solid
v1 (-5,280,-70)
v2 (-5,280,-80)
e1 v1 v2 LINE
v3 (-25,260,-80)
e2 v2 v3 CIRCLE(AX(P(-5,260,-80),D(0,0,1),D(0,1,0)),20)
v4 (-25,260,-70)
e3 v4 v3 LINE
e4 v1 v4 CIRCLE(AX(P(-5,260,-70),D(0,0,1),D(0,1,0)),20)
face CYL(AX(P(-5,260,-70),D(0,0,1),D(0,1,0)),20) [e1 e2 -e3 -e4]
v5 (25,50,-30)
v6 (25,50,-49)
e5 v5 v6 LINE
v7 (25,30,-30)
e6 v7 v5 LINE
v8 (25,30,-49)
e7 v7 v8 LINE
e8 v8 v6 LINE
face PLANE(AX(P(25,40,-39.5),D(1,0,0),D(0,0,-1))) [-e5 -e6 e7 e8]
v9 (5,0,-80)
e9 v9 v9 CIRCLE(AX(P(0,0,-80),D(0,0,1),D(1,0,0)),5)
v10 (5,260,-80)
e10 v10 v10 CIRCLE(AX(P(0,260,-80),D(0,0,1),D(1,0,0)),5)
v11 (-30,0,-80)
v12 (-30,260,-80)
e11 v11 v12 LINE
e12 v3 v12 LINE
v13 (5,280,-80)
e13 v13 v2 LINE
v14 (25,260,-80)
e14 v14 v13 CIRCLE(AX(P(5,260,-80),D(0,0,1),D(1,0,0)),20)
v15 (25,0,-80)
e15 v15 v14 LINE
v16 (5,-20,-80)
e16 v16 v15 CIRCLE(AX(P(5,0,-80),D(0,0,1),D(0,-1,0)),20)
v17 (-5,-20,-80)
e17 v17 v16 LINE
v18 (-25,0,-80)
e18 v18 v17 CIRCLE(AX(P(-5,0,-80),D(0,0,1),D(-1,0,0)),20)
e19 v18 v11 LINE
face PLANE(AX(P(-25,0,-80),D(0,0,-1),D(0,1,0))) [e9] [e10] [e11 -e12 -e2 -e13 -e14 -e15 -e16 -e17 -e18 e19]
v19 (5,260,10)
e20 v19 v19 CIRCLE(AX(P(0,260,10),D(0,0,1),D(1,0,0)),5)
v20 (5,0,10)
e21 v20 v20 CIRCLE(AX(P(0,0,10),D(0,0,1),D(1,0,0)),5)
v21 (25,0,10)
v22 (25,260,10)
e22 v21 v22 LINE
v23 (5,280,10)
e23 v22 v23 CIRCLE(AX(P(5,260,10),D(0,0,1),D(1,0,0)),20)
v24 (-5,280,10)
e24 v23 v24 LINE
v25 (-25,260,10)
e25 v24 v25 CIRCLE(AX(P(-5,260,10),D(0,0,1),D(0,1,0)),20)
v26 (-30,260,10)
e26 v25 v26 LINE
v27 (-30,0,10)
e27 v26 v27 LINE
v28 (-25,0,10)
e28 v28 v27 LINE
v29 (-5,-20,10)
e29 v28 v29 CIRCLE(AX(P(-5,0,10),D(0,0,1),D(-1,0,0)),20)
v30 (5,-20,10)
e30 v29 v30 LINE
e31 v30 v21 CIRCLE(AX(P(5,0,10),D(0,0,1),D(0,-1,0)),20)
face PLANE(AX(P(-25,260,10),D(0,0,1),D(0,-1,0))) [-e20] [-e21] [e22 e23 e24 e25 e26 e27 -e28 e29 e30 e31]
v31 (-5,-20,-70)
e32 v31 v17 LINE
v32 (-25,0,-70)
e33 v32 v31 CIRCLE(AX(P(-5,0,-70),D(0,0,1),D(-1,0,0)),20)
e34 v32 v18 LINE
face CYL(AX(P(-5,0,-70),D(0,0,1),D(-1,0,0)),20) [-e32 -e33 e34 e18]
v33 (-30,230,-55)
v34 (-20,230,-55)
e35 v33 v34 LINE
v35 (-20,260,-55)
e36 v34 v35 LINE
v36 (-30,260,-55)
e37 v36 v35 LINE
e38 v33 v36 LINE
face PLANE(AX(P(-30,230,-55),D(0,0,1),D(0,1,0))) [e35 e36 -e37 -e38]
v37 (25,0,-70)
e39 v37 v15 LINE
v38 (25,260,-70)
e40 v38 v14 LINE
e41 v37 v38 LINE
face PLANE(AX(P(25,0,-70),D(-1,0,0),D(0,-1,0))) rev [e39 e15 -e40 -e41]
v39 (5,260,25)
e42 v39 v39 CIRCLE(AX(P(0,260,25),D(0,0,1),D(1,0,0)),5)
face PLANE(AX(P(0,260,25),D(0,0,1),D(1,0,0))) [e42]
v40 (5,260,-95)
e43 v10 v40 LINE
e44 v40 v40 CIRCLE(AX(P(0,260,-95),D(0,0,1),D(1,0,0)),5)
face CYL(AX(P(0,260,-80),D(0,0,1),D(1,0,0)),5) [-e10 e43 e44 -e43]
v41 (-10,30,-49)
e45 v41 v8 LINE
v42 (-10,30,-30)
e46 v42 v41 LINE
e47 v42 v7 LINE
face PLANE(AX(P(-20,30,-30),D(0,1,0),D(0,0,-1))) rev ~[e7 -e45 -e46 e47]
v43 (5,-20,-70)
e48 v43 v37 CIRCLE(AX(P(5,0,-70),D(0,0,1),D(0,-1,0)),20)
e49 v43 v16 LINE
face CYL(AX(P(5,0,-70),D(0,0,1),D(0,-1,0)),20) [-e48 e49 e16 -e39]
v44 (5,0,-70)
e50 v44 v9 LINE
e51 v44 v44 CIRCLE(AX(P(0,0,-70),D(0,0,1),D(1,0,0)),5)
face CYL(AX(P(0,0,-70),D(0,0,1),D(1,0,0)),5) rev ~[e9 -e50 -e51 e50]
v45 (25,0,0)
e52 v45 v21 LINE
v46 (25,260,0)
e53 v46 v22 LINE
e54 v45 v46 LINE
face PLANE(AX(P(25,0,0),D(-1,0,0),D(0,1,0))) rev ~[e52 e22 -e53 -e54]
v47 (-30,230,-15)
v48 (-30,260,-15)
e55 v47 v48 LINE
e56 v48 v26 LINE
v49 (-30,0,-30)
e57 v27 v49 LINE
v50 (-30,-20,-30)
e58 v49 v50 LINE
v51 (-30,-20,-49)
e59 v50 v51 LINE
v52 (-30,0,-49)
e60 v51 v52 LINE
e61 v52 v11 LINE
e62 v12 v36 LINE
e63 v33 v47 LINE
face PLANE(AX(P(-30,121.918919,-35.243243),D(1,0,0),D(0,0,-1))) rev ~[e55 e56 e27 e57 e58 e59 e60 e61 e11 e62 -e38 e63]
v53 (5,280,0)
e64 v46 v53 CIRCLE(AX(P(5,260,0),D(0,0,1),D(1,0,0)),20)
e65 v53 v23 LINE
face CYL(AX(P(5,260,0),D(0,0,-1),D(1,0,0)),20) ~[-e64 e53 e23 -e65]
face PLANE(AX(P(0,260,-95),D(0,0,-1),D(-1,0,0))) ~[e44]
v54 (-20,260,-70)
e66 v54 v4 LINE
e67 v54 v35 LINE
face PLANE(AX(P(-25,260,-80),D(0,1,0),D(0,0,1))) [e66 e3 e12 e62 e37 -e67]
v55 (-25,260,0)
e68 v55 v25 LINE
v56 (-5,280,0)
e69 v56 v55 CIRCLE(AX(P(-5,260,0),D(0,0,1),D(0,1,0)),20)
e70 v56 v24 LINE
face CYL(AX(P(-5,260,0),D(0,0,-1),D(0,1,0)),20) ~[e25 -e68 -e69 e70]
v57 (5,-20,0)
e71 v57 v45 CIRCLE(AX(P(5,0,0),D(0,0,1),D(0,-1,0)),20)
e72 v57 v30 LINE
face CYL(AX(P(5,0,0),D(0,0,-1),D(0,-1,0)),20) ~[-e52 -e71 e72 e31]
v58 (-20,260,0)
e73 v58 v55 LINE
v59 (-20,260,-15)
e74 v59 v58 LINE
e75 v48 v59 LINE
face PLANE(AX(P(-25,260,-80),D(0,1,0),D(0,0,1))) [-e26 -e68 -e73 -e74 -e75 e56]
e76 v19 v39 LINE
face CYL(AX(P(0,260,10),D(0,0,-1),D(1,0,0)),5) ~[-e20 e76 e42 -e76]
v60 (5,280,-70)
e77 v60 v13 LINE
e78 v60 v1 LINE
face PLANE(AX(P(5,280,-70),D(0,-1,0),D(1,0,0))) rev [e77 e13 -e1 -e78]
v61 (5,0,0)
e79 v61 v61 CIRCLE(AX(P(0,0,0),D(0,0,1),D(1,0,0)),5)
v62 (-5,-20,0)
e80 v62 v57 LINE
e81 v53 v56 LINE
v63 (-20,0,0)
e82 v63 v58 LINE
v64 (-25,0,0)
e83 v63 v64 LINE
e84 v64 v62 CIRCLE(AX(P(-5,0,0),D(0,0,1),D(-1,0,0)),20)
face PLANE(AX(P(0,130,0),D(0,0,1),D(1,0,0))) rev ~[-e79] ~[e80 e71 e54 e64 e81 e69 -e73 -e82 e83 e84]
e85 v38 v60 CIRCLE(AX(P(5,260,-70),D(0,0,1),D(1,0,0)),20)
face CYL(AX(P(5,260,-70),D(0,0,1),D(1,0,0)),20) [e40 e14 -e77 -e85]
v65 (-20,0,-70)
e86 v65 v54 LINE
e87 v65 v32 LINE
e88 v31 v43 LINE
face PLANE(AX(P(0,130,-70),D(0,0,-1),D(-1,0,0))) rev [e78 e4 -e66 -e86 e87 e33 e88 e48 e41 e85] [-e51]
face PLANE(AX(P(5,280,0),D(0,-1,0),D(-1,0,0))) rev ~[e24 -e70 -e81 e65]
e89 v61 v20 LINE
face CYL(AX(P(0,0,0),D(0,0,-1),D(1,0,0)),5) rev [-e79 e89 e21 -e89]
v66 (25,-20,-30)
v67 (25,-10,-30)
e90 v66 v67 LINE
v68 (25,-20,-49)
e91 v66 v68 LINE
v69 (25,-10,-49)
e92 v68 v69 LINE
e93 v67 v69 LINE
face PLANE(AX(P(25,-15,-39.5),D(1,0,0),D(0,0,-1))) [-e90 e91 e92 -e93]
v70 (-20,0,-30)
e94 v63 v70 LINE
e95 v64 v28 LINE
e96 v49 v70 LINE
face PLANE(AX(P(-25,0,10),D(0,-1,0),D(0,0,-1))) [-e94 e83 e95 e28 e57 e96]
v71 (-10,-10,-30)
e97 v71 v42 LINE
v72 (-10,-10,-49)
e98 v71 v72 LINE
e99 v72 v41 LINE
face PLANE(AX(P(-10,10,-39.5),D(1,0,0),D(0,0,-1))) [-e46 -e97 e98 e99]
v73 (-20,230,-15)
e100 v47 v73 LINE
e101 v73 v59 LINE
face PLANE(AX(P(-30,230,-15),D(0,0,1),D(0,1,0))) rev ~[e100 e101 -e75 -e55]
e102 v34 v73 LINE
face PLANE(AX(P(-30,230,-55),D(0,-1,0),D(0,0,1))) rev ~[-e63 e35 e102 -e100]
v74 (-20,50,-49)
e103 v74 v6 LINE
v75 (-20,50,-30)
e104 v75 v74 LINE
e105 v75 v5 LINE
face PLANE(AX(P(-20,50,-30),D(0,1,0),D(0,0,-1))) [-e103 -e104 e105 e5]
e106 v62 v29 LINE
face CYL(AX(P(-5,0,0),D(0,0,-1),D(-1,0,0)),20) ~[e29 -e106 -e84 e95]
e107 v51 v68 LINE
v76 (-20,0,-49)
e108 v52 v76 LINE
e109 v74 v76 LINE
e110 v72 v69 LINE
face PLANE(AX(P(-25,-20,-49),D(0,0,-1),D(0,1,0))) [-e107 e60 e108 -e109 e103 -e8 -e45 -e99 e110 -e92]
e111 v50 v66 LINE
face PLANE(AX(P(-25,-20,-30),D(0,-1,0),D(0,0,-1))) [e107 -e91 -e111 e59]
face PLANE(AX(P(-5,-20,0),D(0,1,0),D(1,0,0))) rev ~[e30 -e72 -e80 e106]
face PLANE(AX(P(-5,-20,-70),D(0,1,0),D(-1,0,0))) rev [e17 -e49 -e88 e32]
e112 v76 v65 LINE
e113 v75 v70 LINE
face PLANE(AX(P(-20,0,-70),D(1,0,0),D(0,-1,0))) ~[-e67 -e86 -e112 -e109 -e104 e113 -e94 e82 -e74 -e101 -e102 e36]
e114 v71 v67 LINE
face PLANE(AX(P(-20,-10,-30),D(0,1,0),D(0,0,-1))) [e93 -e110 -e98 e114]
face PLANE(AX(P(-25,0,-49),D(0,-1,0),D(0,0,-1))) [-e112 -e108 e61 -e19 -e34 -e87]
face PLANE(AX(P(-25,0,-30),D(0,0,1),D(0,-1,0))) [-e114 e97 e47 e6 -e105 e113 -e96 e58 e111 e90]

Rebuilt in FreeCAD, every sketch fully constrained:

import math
import FreeCAD as App
import Part
import Sketcher


def add_polygon(sketch, points):
    """Adds a closed chain of lines whose ends are joined by coincident constraints."""
    first, n = sketch.GeometryCount, len(points)
    for a, b in zip(points, points[1:] + points[:1]):
        sketch.addGeometry(Part.LineSegment(App.Vector(*a, 0), App.Vector(*b, 0)), False)
    for i in range(n):
        sketch.addConstraint(Sketcher.Constraint("Coincident", first + i, 2, first + (i + 1) % n, 1))

doc = App.newDocument("Part")
body = doc.addObject("PartDesign::Body", "Body")

# Sketch on XY plane
sketch1 = doc.addObject("Sketcher::SketchObject", "Sketch")
body.addObject(sketch1)
sketch1.AttachmentSupport = (doc.XY_Plane, [""])
sketch1.MapMode = "FlatFace"
sketch1.addGeometry([
    Part.LineSegment(App.Vector(-5, -20, 0), App.Vector(5, -20, 0)),  # 0
    Part.ArcOfCircle(Part.Circle(App.Vector(5, 0, 0), App.Vector(0, 0, 1), 20), math.radians(-90), math.radians(0)),  # 1
    Part.LineSegment(App.Vector(25, 0, 0), App.Vector(25, 260, 0)),  # 2
    Part.ArcOfCircle(Part.Circle(App.Vector(5, 260, 0), App.Vector(0, 0, 1), 20), math.radians(0), math.radians(90)),  # 3
    Part.LineSegment(App.Vector(5, 280, 0), App.Vector(-5, 280, 0)),  # 4
    Part.ArcOfCircle(Part.Circle(App.Vector(-5, 260, 0), App.Vector(0, 0, 1), 20), math.radians(90), math.radians(180)),  # 5
    Part.LineSegment(App.Vector(-25, 260, 0), App.Vector(-25, 0, 0)),  # 6
    Part.ArcOfCircle(Part.Circle(App.Vector(-5, 0, 0), App.Vector(0, 0, 1), 20), math.radians(180), math.radians(270)),  # 7
    Part.Circle(App.Vector(0, 0, 0), App.Vector(0, 0, 1), 5),  # 8
], False)
sketch1.addConstraint([
    Sketcher.Constraint("Tangent", 0, 2, 1, 1),
    Sketcher.Constraint("Tangent", 1, 2, 2, 1),
    Sketcher.Constraint("Tangent", 2, 2, 3, 1),
    Sketcher.Constraint("Tangent", 3, 2, 4, 1),
    Sketcher.Constraint("Tangent", 4, 2, 5, 1),
    Sketcher.Constraint("Tangent", 5, 2, 6, 1),
    Sketcher.Constraint("Tangent", 6, 2, 7, 1),
    Sketcher.Constraint("Tangent", 7, 2, 0, 1),
    Sketcher.Constraint("Horizontal", 0),
    Sketcher.Constraint("Vertical", 2),
    Sketcher.Constraint("Horizontal", 4),
    Sketcher.Constraint("Vertical", 6),
    Sketcher.Constraint("Coincident", 8, 3, -1, 1),
    Sketcher.Constraint("Equal", 1, 3),
    Sketcher.Constraint("Equal", 3, 5),
    Sketcher.Constraint("Equal", 5, 7),
    Sketcher.Constraint("Symmetric", 1, 3, 7, 3, -1, 1),
    Sketcher.Constraint("Diameter", 8, 10.0),
    Sketcher.Constraint("Radius", 1, 20.0),
    Sketcher.Constraint("DistanceX", 0, 1, 0, 2, 10.0),
    Sketcher.Constraint("DistanceY", 2, 1, 2, 2, 260.0),
])
pad1 = doc.addObject("PartDesign::Pad", "Pad")
body.addObject(pad1)
pad1.Profile = sketch1
pad1.Length = 10

# Sketch on XY plane
sketch2 = doc.addObject("Sketcher::SketchObject", "Sketch001")
body.addObject(sketch2)
sketch2.AttachmentSupport = (doc.XY_Plane, [""])
sketch2.MapMode = "FlatFace"
sketch2.AttachmentOffset = App.Placement(App.Vector(0, 0, 10), App.Rotation())
sketch2.addGeometry(Part.Circle(App.Vector(0, 260, 0), App.Vector(0, 0, 1), 5), False)
sketch2.addConstraint([
    Sketcher.Constraint("PointOnObject", 0, 3, -2),
    Sketcher.Constraint("Diameter", 0, 10.0),
    Sketcher.Constraint("DistanceY", -1, 1, 0, 3, 260.0),
])
pad2 = doc.addObject("PartDesign::Pad", "Pad001")
body.addObject(pad2)
pad2.Profile = sketch2
pad2.Length = 15

# Sketch on XY plane
sketch3 = doc.addObject("Sketcher::SketchObject", "Sketch002")
body.addObject(sketch3)
sketch3.AttachmentSupport = (doc.XY_Plane, [""])
sketch3.MapMode = "FlatFace"
add_polygon(sketch3, [(-20, 260), (-20, 0), (-25, 0), (-25, 260)])  # lines 0-3
sketch3.addConstraint([
    Sketcher.Constraint("Vertical", 0),
    Sketcher.Constraint("Horizontal", 1),
    Sketcher.Constraint("Vertical", 2),
    Sketcher.Constraint("Horizontal", 3),
    Sketcher.Constraint("PointOnObject", 0, 2, -1),
    Sketcher.Constraint("DistanceX", 1, 2, 1, 1, 5.0),
    Sketcher.Constraint("DistanceY", 0, 2, 0, 1, 260.0),
    Sketcher.Constraint("DistanceX", 0, 2, -1, 1, 20.0),
])
pad3 = doc.addObject("PartDesign::Pad", "Pad002")
body.addObject(pad3)
pad3.Profile = sketch3
pad3.Length = 35
pad3.Reversed = True
doc.recompute()

datumplane = doc.addObject("PartDesign::Plane", "DatumPlane")
body.addObject(datumplane)
datumplane.AttachmentSupport = (doc.XY_Plane, [""])
datumplane.MapMode = "FlatFace"
datumplane.AttachmentOffset = App.Placement(App.Vector(0, 0, -35), App.Rotation())
mirrored = doc.addObject("PartDesign::Mirrored", "Mirrored")
body.addObject(mirrored)
mirrored.Originals = [pad1, pad2, pad3]
mirrored.MirrorPlane = (datumplane, [""])
body.Tip = mirrored

# Sketch on XZ plane
sketch4 = doc.addObject("Sketcher::SketchObject", "Sketch003")
body.addObject(sketch4)
sketch4.AttachmentSupport = (doc.XZ_Plane, [""])
sketch4.MapMode = "FlatFace"
add_polygon(sketch4, [(-25, -30), (-25, -49), (-20, -49), (-20, -30)])  # lines 0-3
sketch4.addConstraint([
    Sketcher.Constraint("Vertical", 0),
    Sketcher.Constraint("Horizontal", 1),
    Sketcher.Constraint("Vertical", 2),
    Sketcher.Constraint("Horizontal", 3),
    Sketcher.Constraint("DistanceX", 1, 1, 1, 2, 5.0),
    Sketcher.Constraint("DistanceY", 0, 2, 0, 1, 19.0),
    Sketcher.Constraint("DistanceX", 0, 2, -1, 1, 25.0),
    Sketcher.Constraint("DistanceY", 0, 2, -1, 1, 49.0),
])
pad4 = doc.addObject("PartDesign::Pad", "Pad003")
body.addObject(pad4)
pad4.Profile = sketch4
pad4.Length = 20

# Sketch on YZ plane
sketch5 = doc.addObject("Sketcher::SketchObject", "Sketch004")
body.addObject(sketch5)
sketch5.AttachmentSupport = (doc.YZ_Plane, [""])
sketch5.MapMode = "FlatFace"
sketch5.AttachmentOffset = App.Placement(App.Vector(0, 0, -20), App.Rotation())
add_polygon(sketch5, [(-10, -30), (-20, -30), (-20, -49), (-10, -49)])  # lines 0-3
add_polygon(sketch5, [(50, -30), (30, -30), (30, -49), (50, -49)])  # lines 4-7
sketch5.addConstraint([
    Sketcher.Constraint("Horizontal", 0),
    Sketcher.Constraint("Vertical", 1),
    Sketcher.Constraint("Horizontal", 2),
    Sketcher.Constraint("Vertical", 3),
    Sketcher.Constraint("Horizontal", 4),
    Sketcher.Constraint("Vertical", 5),
    Sketcher.Constraint("Horizontal", 6),
    Sketcher.Constraint("Vertical", 7),
    Sketcher.Constraint("Horizontal", 3, 2, 4, 2),
    Sketcher.Constraint("Horizontal", 2, 2, 5, 2),
    Sketcher.Constraint("DistanceX", 0, 2, 0, 1, 10.0),
    Sketcher.Constraint("DistanceX", 4, 2, 4, 1, 20.0),
    Sketcher.Constraint("DistanceY", 1, 2, 1, 1, 19.0),
    Sketcher.Constraint("DistanceX", 0, 2, -1, 1, 20.0),
    Sketcher.Constraint("DistanceY", 0, 2, -1, 1, 30.0),
    Sketcher.Constraint("DistanceX", -1, 1, 4, 2, 30.0),
])
pad5 = doc.addObject("PartDesign::Pad", "Pad004")
body.addObject(pad5)
pad5.Profile = sketch5
pad5.Length = 45

# Sketch on YZ plane
sketch6 = doc.addObject("Sketcher::SketchObject", "Sketch005")
body.addObject(sketch6)
sketch6.AttachmentSupport = (doc.YZ_Plane, [""])
sketch6.MapMode = "FlatFace"
sketch6.AttachmentOffset = App.Placement(App.Vector(0, 0, -20), App.Rotation())
add_polygon(sketch6, [(30, -30), (-10, -30), (-10, -49), (30, -49)])  # lines 0-3
sketch6.addConstraint([
    Sketcher.Constraint("Horizontal", 0),
    Sketcher.Constraint("Vertical", 1),
    Sketcher.Constraint("Horizontal", 2),
    Sketcher.Constraint("Vertical", 3),
    Sketcher.Constraint("DistanceX", 0, 2, 0, 1, 40.0),
    Sketcher.Constraint("DistanceY", 1, 2, 1, 1, 19.0),
    Sketcher.Constraint("DistanceX", 0, 2, -1, 1, 10.0),
    Sketcher.Constraint("DistanceY", 0, 2, -1, 1, 30.0),
])
pad6 = doc.addObject("PartDesign::Pad", "Pad005")
body.addObject(pad6)
pad6.Profile = sketch6
pad6.Length = 10

# Sketch on YZ plane
sketch7 = doc.addObject("Sketcher::SketchObject", "Sketch006")
body.addObject(sketch7)
sketch7.AttachmentSupport = (doc.YZ_Plane, [""])
sketch7.MapMode = "FlatFace"
sketch7.AttachmentOffset = App.Placement(App.Vector(0, 0, -25), App.Rotation())
add_polygon(sketch7, [(0, -30), (0, 10), (260, 10), (260, -80), (0, -80), (0, -49), (-20, -49), (-20, -30)])  # lines 0-7
sketch7.addConstraint([
    Sketcher.Constraint("Vertical", 0),
    Sketcher.Constraint("Horizontal", 1),
    Sketcher.Constraint("Vertical", 2),
    Sketcher.Constraint("Horizontal", 3),
    Sketcher.Constraint("Vertical", 4),
    Sketcher.Constraint("Horizontal", 5),
    Sketcher.Constraint("Vertical", 6),
    Sketcher.Constraint("Horizontal", 7),
    Sketcher.Constraint("PointOnObject", 0, 2, -2),
    Sketcher.Constraint("PointOnObject", 3, 2, -2),
    Sketcher.Constraint("DistanceX", 1, 1, 1, 2, 260.0),
    Sketcher.Constraint("DistanceX", 5, 2, 5, 1, 20.0),
    Sketcher.Constraint("DistanceY", 0, 1, 0, 2, 40.0),
    Sketcher.Constraint("DistanceY", 2, 2, 2, 1, 90.0),
    Sketcher.Constraint("DistanceY", 4, 1, 4, 2, 31.0),
    Sketcher.Constraint("DistanceY", -1, 1, 0, 2, 10.0),
])
pad7 = doc.addObject("PartDesign::Pad", "Pad006")
body.addObject(pad7)
pad7.Profile = sketch7
pad7.Length = 5
pad7.Reversed = True

# Sketch on YZ plane
sketch8 = doc.addObject("Sketcher::SketchObject", "Sketch007")
body.addObject(sketch8)
sketch8.AttachmentSupport = (doc.YZ_Plane, [""])
sketch8.MapMode = "FlatFace"
sketch8.AttachmentOffset = App.Placement(App.Vector(0, 0, -30), App.Rotation())
add_polygon(sketch8, [(260, -55), (230, -55), (230, -15), (260, -15)])  # lines 0-3
sketch8.addConstraint([
    Sketcher.Constraint("Horizontal", 0),
    Sketcher.Constraint("Vertical", 1),
    Sketcher.Constraint("Horizontal", 2),
    Sketcher.Constraint("Vertical", 3),
    Sketcher.Constraint("DistanceX", 0, 2, 0, 1, 30.0),
    Sketcher.Constraint("DistanceY", 1, 1, 1, 2, 40.0),
    Sketcher.Constraint("DistanceX", -1, 1, 0, 2, 230.0),
    Sketcher.Constraint("DistanceY", 0, 2, -1, 1, 55.0),
])
pocket1 = doc.addObject("PartDesign::Pocket", "Pocket")
body.addObject(pocket1)
pocket1.Profile = sketch8
pocket1.Length = 10
pocket1.Reversed = True

doc.recompute()
